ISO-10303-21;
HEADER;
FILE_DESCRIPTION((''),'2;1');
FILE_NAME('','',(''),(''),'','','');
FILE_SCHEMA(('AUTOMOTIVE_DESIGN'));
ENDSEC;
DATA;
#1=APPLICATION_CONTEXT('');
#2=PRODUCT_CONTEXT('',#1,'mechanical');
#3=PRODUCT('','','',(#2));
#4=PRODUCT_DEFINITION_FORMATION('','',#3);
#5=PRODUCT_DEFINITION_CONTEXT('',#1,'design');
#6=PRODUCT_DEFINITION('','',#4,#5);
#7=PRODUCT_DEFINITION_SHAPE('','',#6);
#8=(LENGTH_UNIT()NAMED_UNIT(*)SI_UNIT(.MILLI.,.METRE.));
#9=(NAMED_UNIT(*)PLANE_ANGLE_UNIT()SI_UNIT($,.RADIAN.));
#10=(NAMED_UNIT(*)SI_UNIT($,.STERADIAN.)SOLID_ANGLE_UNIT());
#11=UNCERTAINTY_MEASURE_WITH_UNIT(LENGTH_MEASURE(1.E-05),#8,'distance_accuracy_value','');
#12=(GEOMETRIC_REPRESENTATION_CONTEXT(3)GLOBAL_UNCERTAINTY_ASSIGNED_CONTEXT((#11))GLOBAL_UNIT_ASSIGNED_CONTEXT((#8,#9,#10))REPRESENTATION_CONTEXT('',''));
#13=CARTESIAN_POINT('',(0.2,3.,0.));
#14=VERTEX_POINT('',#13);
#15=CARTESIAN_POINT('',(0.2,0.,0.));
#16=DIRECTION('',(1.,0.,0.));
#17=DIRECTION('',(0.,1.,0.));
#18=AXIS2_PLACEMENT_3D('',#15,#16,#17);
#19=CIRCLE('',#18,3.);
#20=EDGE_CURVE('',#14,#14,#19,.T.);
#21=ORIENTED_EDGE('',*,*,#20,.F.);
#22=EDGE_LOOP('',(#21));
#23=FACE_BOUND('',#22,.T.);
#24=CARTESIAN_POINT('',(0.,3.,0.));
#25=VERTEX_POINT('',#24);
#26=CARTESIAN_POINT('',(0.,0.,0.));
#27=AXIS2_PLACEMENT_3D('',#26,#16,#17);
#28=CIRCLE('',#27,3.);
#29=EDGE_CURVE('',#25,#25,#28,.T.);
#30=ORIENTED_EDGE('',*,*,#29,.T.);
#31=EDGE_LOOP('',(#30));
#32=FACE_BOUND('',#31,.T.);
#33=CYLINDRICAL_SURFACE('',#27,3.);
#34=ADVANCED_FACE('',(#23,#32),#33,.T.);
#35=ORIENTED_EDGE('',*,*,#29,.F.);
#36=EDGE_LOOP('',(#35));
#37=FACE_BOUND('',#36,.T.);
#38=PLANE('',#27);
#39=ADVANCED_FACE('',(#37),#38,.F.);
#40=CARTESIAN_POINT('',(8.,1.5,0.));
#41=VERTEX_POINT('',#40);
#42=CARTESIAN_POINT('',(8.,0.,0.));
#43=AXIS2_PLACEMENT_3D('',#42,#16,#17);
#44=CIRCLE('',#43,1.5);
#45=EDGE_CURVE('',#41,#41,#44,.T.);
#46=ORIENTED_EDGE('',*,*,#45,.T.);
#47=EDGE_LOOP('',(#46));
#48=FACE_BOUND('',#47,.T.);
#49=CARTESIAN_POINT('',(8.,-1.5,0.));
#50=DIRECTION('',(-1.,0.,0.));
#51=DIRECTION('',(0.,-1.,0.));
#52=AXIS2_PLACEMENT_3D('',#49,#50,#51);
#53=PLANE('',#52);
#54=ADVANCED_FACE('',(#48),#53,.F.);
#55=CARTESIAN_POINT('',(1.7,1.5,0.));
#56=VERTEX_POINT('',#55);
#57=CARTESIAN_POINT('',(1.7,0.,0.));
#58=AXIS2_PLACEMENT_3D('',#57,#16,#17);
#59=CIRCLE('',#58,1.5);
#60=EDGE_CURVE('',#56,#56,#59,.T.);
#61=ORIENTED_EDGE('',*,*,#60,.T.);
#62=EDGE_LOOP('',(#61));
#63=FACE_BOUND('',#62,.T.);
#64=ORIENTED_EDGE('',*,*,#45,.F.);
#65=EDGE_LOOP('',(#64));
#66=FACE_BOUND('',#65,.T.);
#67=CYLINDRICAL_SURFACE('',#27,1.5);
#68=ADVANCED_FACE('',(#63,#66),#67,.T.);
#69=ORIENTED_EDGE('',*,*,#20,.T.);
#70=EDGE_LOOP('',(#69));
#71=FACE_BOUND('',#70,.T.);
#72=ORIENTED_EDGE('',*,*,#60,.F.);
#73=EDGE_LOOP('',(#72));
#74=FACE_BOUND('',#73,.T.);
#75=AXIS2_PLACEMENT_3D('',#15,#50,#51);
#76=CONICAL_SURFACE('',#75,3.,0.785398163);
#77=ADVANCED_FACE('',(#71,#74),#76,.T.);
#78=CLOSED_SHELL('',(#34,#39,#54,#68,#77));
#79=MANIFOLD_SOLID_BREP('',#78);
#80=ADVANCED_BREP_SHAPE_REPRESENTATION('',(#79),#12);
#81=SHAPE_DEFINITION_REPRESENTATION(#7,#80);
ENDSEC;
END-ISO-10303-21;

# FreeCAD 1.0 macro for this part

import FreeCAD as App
import Part
import Sketcher

V = App.Vector
Q = App.Units.Quantity


def add_polygon(sketch, points):
    """Adds a closed chain of lines whose ends are joined by coincident constraints."""
    first, n = sketch.GeometryCount, len(points)
    for a, b in zip(points, points[1:] + points[:1]):
        sketch.addGeometry(Part.LineSegment(App.Vector(*a, 0), App.Vector(*b, 0)), False)
    for i in range(n):
        sketch.addConstraint(Sketcher.Constraint("Coincident", first + i, 2, first + (i + 1) % n, 1))

doc = App.newDocument("Part")
body = doc.addObject("PartDesign::Body", "Body")

sketch1 = body.newObject("Sketcher::SketchObject", "Sketch")
sketch1.AttachmentSupport = (doc.getObject("XY_Plane"), [""])
sketch1.MapMode = "FlatFace"
add_polygon(sketch1, [(0, 0), (0, -3), (0.2, -3), (1.7, -1.5), (8, -1.5), (8, 0)])
sketch1.addConstraint([
    Sketcher.Constraint("Vertical", 0),
    Sketcher.Constraint("Horizontal", 1),
    Sketcher.Constraint("Horizontal", 3),
    Sketcher.Constraint("Vertical", 4),
    Sketcher.Constraint("Horizontal", 5),
    Sketcher.Constraint("Coincident", 5, 2, -1, 1),
    Sketcher.Constraint("DistanceX", 5, 2, 5, 1, 8.0),
    Sketcher.Constraint("DistanceY", 0, 2, 0, 1, 3.0),
    Sketcher.Constraint("Angle", 2, Q("45 deg")),
    Sketcher.Constraint("DistanceX", 1, 1, 1, 2, 0.2),
    Sketcher.Constraint("DistanceX", 3, 1, 3, 2, 6.3),
])
revolution = body.newObject("PartDesign::Revolution", "Revolution")
revolution.Profile = sketch1
revolution.ReferenceAxis = (sketch1, ["H_Axis"])
revolution.Angle = 360

doc.recompute()
